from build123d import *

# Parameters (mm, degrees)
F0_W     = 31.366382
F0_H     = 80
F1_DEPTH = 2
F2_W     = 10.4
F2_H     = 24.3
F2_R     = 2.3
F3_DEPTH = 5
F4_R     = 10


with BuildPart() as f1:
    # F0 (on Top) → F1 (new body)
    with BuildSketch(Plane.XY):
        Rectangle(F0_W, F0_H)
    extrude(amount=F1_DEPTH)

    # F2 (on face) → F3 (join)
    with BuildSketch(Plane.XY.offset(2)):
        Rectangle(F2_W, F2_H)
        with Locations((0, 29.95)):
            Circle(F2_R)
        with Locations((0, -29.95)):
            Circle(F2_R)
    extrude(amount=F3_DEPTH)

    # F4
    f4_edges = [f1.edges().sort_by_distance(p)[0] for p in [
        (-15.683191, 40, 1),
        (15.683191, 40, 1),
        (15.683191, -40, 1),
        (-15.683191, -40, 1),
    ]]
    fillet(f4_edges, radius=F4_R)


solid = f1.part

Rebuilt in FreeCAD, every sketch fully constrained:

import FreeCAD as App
import Part
import Sketcher
from FreeCAD import Vector


def edges_at(feature, points):
    """Names of the edges that pass closest to the given points."""
    edges = feature.Shape.Edges
    near = lambda p: min(range(len(edges)), key=lambda i: edges[i].distToShape(Part.Vertex(*p))[0])
    return sorted({f"Edge{near(p) + 1}" for p in points})

doc = App.newDocument("Part")
body = doc.addObject("PartDesign::Body", "Body")

sketch1 = body.newObject("Sketcher::SketchObject", "Sketch")
sketch1.AttachmentSupport = (doc.getObject("XY_Plane"), [""])
sketch1.MapMode = "FlatFace"
sketch1.addGeometry(Part.LineSegment(Vector(-16, 40, 0), Vector(-16, -40, 0)), False)
sketch1.addGeometry(Part.LineSegment(Vector(-16, -40, 0), Vector(16, -40, 0)), False)
sketch1.addGeometry(Part.LineSegment(Vector(16, -40, 0), Vector(16, 40, 0)), False)
sketch1.addGeometry(Part.LineSegment(Vector(16, 40, 0), Vector(-16, 40, 0)), False)
sketch1.addConstraint(Sketcher.Constraint("Coincident", 0, 2, 1, 1))
sketch1.addConstraint(Sketcher.Constraint("Coincident", 1, 2, 2, 1))
sketch1.addConstraint(Sketcher.Constraint("Coincident", 2, 2, 3, 1))
sketch1.addConstraint(Sketcher.Constraint("Coincident", 3, 2, 0, 1))
sketch1.addConstraint(Sketcher.Constraint("Vertical", 0))
sketch1.addConstraint(Sketcher.Constraint("Horizontal", 1))
sketch1.addConstraint(Sketcher.Constraint("Vertical", 2))
sketch1.addConstraint(Sketcher.Constraint("Horizontal", 3))
sketch1.addConstraint(Sketcher.Constraint("Symmetric", 0, 2, 2, 2, -1, 1))
sketch1.addConstraint(Sketcher.Constraint("DistanceY", 0, 2, 0, 1, 80.0))
sketch1.addConstraint(Sketcher.Constraint("DistanceX", 1, 1, 1, 2, 31.366382))
pad1 = body.newObject("PartDesign::Pad", "Pad")
pad1.Profile = sketch1
pad1.Length = 2

sketch2 = body.newObject("Sketcher::SketchObject", "Sketch001")
sketch2.AttachmentSupport = (doc.getObject("XY_Plane"), [""])
sketch2.MapMode = "FlatFace"
sketch2.AttachmentOffset = App.Placement(Vector(0, 0, 2), App.Rotation())
sketch2.addGeometry(Part.LineSegment(Vector(-5.2, 12.2, 0), Vector(-5.2, -12.2, 0)), False)
sketch2.addGeometry(Part.LineSegment(Vector(-5.2, -12.2, 0), Vector(5.2, -12.2, 0)), False)
sketch2.addGeometry(Part.LineSegment(Vector(5.2, -12.2, 0), Vector(5.2, 12.2, 0)), False)
sketch2.addGeometry(Part.LineSegment(Vector(5.2, 12.2, 0), Vector(-5.2, 12.2, 0)), False)
sketch2.addGeometry(Part.Circle(Vector(0, 29.9, 0), Vector(0, 0, 1), 2.3), False)
sketch2.addGeometry(Part.Circle(Vector(0, -29.9, 0), Vector(0, 0, 1), 2.3), False)
sketch2.addConstraint(Sketcher.Constraint("Coincident", 0, 2, 1, 1))
sketch2.addConstraint(Sketcher.Constraint("Coincident", 1, 2, 2, 1))
sketch2.addConstraint(Sketcher.Constraint("Coincident", 2, 2, 3, 1))
sketch2.addConstraint(Sketcher.Constraint("Coincident", 3, 2, 0, 1))
sketch2.addConstraint(Sketcher.Constraint("Vertical", 0))
sketch2.addConstraint(Sketcher.Constraint("Horizontal", 1))
sketch2.addConstraint(Sketcher.Constraint("Vertical", 2))
sketch2.addConstraint(Sketcher.Constraint("Horizontal", 3))
sketch2.addConstraint(Sketcher.Constraint("Equal", 4, 5))
sketch2.addConstraint(Sketcher.Constraint("Symmetric", 4, 3, 5, 3, -1, 1))
sketch2.addConstraint(Sketcher.Constraint("Symmetric", 0, 2, 2, 2, -1, 1))
sketch2.addConstraint(Sketcher.Constraint("PointOnObject", 4, 3, -2))
sketch2.addConstraint(Sketcher.Constraint("Diameter", 4, 4.6))
sketch2.addConstraint(Sketcher.Constraint("DistanceX", 1, 1, 1, 2, 10.4))
sketch2.addConstraint(Sketcher.Constraint("DistanceY", 0, 2, 0, 1, 24.3))
sketch2.addConstraint(Sketcher.Constraint("DistanceY", 5, 3, 4, 3, 59.9))
pad2 = body.newObject("PartDesign::Pad", "Pad001")
pad2.Profile = sketch2
pad2.Length = 5
doc.recompute()

fillet = body.newObject("PartDesign::Fillet", "Fillet")
fillet.Base = (pad2, edges_at(pad2, [
    (-15.683, 40, 1),
    (15.683, 40, 1),
    (15.683, -40, 1),
    (-15.683, -40, 1),
]))
fillet.Radius = 10

doc.recompute()
